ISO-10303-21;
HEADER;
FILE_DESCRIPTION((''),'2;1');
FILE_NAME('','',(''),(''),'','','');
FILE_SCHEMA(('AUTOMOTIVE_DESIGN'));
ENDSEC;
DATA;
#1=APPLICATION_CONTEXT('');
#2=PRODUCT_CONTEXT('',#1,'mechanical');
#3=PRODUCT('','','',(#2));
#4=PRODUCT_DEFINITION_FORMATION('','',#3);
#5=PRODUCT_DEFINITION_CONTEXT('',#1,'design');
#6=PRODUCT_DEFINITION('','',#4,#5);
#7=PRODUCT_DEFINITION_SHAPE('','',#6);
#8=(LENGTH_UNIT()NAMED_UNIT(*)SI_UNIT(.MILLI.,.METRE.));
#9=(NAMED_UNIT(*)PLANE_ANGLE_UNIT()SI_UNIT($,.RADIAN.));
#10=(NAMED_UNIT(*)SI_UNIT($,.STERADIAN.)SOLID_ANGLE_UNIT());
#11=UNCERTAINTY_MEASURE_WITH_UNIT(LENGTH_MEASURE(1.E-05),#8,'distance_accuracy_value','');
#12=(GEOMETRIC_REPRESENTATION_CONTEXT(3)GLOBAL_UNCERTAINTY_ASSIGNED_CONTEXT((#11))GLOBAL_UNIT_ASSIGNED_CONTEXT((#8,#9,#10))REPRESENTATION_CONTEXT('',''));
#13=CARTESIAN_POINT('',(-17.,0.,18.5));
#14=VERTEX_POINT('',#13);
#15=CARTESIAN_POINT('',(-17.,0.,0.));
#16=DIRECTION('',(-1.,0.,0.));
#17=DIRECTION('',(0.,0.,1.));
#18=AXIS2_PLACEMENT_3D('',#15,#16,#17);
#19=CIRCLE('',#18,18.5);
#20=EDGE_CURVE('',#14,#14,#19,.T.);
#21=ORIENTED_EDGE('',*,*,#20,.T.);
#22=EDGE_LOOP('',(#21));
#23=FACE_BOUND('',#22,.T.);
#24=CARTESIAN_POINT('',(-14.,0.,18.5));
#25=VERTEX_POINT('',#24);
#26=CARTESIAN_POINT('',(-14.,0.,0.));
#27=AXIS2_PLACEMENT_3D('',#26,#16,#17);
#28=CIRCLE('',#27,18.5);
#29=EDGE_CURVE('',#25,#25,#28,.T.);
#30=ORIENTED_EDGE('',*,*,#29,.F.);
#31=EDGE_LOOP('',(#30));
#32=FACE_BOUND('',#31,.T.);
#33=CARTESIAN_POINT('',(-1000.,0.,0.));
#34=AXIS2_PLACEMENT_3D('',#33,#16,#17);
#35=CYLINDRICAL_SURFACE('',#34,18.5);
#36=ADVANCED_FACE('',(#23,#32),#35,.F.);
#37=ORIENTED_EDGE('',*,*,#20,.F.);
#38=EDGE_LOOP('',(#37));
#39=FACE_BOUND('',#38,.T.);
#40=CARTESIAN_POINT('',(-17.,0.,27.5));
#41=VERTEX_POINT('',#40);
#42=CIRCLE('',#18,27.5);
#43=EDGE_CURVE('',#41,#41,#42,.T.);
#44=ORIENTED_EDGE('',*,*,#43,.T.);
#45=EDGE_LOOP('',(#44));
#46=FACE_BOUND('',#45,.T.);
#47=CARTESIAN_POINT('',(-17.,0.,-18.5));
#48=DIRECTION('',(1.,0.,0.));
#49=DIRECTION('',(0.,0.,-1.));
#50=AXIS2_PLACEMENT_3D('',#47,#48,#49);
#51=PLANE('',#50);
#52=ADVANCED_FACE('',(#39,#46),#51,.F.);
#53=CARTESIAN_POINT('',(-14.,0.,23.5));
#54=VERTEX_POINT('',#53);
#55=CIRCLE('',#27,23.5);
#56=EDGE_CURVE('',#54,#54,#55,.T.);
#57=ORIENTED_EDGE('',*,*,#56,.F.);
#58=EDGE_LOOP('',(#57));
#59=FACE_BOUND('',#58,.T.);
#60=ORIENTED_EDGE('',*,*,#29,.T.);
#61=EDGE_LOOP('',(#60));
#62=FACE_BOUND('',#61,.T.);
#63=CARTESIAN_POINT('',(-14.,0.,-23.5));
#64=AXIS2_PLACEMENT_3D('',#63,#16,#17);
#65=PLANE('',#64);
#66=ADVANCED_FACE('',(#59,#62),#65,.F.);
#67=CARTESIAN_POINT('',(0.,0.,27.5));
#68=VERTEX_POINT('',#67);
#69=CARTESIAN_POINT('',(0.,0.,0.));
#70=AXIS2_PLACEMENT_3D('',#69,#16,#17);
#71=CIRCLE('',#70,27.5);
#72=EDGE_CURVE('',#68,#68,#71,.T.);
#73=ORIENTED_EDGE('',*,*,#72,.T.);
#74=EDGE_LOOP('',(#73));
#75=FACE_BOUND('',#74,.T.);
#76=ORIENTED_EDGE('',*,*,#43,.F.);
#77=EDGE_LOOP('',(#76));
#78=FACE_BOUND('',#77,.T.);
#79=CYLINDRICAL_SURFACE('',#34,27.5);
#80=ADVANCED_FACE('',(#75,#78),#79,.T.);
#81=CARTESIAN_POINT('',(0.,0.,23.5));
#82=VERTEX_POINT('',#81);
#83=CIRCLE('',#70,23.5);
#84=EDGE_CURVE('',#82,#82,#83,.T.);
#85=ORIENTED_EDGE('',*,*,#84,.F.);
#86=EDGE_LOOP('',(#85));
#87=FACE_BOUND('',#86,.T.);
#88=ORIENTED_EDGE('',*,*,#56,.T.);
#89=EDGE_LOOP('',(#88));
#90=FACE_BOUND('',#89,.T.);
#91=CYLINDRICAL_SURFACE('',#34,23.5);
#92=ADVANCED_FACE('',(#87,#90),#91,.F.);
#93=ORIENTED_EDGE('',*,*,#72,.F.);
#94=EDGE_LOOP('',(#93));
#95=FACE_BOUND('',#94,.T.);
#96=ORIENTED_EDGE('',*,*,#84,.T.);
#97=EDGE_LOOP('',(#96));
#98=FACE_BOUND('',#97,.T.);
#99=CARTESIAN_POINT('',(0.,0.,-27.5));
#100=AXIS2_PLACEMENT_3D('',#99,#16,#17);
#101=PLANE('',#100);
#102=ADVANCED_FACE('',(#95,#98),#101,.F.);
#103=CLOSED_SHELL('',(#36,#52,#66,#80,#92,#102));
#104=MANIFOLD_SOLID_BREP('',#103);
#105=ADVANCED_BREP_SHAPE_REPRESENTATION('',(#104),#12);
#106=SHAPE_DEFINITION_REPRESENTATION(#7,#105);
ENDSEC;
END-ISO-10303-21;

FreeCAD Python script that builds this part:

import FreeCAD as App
import Part
import Sketcher

V = App.Vector
Q = App.Units.Quantity

doc = App.newDocument("Part")
body = doc.addObject("PartDesign::Body", "Body")

# Sketch on XZ plane
sketch1 = body.newObject("Sketcher::SketchObject", "Sketch")
sketch1.AttachmentSupport = (doc.getObject("XZ_Plane"), [""])
sketch1.MapMode = "FlatFace"
sketch1.addGeometry(Part.LineSegment(V(-14, -23.5, 0), V(0, -23.5, 0)), False)
sketch1.addGeometry(Part.LineSegment(V(0, -23.5, 0), V(0, -27.5, 0)), False)
sketch1.addGeometry(Part.LineSegment(V(0, -27.5, 0), V(-17, -27.5, 0)), False)
sketch1.addGeometry(Part.LineSegment(V(-17, -27.5, 0), V(-17, -18.5, 0)), False)
sketch1.addGeometry(Part.LineSegment(V(-17, -18.5, 0), V(-14, -18.5, 0)), False)
sketch1.addGeometry(Part.LineSegment(V(-14, -18.5, 0), V(-14, -23.5, 0)), False)
sketch1.addConstraint(Sketcher.Constraint("Coincident", 0, 2, 1, 1))
sketch1.addConstraint(Sketcher.Constraint("Coincident", 1, 2, 2, 1))
sketch1.addConstraint(Sketcher.Constraint("Coincident", 2, 2, 3, 1))
sketch1.addConstraint(Sketcher.Constraint("Coincident", 3, 2, 4, 1))
sketch1.addConstraint(Sketcher.Constraint("Coincident", 4, 2, 5, 1))
sketch1.addConstraint(Sketcher.Constraint("Coincident", 5, 2, 0, 1))
sketch1.addConstraint(Sketcher.Constraint("Horizontal", 0))
sketch1.addConstraint(Sketcher.Constraint("Vertical", 1))
sketch1.addConstraint(Sketcher.Constraint("Horizontal", 2))
sketch1.addConstraint(Sketcher.Constraint("Vertical", 3))
sketch1.addConstraint(Sketcher.Constraint("Horizontal", 4))
sketch1.addConstraint(Sketcher.Constraint("Vertical", 5))
sketch1.addConstraint(Sketcher.Constraint("PointOnObject", 0, 2, -2))
sketch1.addConstraint(Sketcher.Constraint("DistanceX", 0, 1, 0, 2, Q("14 mm")))
sketch1.addConstraint(Sketcher.Constraint("DistanceX", 2, 2, 2, 1, Q("17 mm")))
sketch1.addConstraint(Sketcher.Constraint("DistanceY", 1, 2, 1, 1, Q("4 mm")))
sketch1.addConstraint(Sketcher.Constraint("DistanceY", 3, 1, 3, 2, Q("9 mm")))
sketch1.addConstraint(Sketcher.Constraint("DistanceY", 0, 2, -1, 1, Q("23.5 mm")))
revolution = body.newObject("PartDesign::Revolution", "Revolution")
revolution.Profile = sketch1
revolution.ReferenceAxis = (sketch1, ["H_Axis"])
revolution.Angle = 360

doc.recompute()
